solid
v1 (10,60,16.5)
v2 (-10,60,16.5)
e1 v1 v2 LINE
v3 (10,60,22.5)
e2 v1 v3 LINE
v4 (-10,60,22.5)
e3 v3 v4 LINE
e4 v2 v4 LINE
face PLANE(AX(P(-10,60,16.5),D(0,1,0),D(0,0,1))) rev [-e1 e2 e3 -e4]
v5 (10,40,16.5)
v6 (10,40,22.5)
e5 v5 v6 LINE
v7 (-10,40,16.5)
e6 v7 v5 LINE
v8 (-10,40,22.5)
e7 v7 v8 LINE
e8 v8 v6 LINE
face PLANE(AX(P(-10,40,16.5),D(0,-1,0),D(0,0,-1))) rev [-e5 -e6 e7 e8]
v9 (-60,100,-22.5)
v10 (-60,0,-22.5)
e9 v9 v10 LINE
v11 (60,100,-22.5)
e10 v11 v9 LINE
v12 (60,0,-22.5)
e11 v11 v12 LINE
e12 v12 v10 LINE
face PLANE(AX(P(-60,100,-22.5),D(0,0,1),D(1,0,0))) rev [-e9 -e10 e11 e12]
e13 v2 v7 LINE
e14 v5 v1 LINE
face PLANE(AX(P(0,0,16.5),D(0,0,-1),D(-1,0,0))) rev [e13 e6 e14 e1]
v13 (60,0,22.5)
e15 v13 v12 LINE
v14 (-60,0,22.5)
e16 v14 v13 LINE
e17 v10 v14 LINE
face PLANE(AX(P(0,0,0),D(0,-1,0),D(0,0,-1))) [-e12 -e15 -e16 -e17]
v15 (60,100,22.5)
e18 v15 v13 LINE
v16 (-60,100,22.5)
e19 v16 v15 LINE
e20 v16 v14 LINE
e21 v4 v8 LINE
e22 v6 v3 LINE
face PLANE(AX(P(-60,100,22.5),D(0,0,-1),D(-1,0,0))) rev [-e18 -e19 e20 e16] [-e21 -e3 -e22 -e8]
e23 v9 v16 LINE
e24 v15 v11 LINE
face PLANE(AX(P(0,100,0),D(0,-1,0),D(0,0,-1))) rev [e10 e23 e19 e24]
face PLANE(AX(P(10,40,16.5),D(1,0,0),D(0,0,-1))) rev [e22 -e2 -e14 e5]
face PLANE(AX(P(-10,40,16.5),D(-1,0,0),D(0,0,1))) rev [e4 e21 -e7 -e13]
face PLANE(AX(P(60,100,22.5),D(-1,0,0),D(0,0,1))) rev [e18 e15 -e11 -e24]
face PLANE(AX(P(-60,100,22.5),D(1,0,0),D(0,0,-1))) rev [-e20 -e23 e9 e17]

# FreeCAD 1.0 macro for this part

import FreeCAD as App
import Part
import Sketcher

doc = App.newDocument("Part")
params = doc.addObject("Spreadsheet::Sheet", "Params")
for row, (alias, value) in enumerate([
    ("sketch1_width", "120 mm"),
    ("sketch1_height", "45 mm"),
    ("pad1_length", "100 mm"),
    ("sketch2_width", "20 mm"),
    ("pocket1_length", "6 mm"),
], start=1):
    params.set(f"A{row}", alias)
    params.set(f"B{row}", "=" + value)
    params.setAlias(f"B{row}", alias)

body = doc.addObject("PartDesign::Body", "Body")

# Sketch on XZ plane
sketch1 = body.newObject("Sketcher::SketchObject", "Sketch")
sketch1.AttachmentSupport = (doc.getObject("XZ_Plane"), [""])
sketch1.MapMode = "FlatFace"
sketch1.addGeometry([
    Part.LineSegment(App.Vector(-60, -22, 0), App.Vector(-60, 22, 0)),
    Part.LineSegment(App.Vector(-60, 22, 0), App.Vector(60, 22, 0)),
    Part.LineSegment(App.Vector(60, 22, 0), App.Vector(60, -22, 0)),
    Part.LineSegment(App.Vector(60, -22, 0), App.Vector(-60, -22, 0)),
], False)
sketch1.addConstraint([
    Sketcher.Constraint("Coincident", 0, 2, 1, 1),
    Sketcher.Constraint("Coincident", 1, 2, 2, 1),
    Sketcher.Constraint("Coincident", 2, 2, 3, 1),
    Sketcher.Constraint("Coincident", 3, 2, 0, 1),
    Sketcher.Constraint("Vertical", 0),
    Sketcher.Constraint("Horizontal", 1),
    Sketcher.Constraint("Vertical", 2),
    Sketcher.Constraint("Horizontal", 3),
    Sketcher.Constraint("Symmetric", 0, 2, 2, 2, -1, 1),
    Sketcher.Constraint("DistanceX", 1, 1, 1, 2, 120.0),
    Sketcher.Constraint("DistanceY", 0, 1, 0, 2, 45.0),
])
sketch1.setExpression("Constraints[9]", "Params.sketch1_width")
sketch1.setExpression("Constraints[10]", "Params.sketch1_height")
pad1 = body.newObject("PartDesign::Pad", "Pad")
pad1.Profile = sketch1
pad1.setExpression("Length", "Params.pad1_length")
pad1.Reversed = True

# Sketch on XY plane
sketch2 = body.newObject("Sketcher::SketchObject", "Sketch001")
sketch2.AttachmentSupport = (doc.getObject("XY_Plane"), [""])
sketch2.MapMode = "FlatFace"
sketch2.AttachmentOffset = App.Placement(App.Vector(0, 0, 22.5), App.Rotation())
sketch2.addGeometry([
    Part.LineSegment(App.Vector(-10, 60, 0), App.Vector(-10, 40, 0)),
    Part.LineSegment(App.Vector(-10, 40, 0), App.Vector(10, 40, 0)),
    Part.LineSegment(App.Vector(10, 40, 0), App.Vector(10, 60, 0)),
    Part.LineSegment(App.Vector(10, 60, 0), App.Vector(-10, 60, 0)),
], False)
sketch2.addConstraint([
    Sketcher.Constraint("Coincident", 0, 2, 1, 1),
    Sketcher.Constraint("Coincident", 1, 2, 2, 1),
    Sketcher.Constraint("Coincident", 2, 2, 3, 1),
    Sketcher.Constraint("Coincident", 3, 2, 0, 1),
    Sketcher.Constraint("Vertical", 0),
    Sketcher.Constraint("Horizontal", 1),
    Sketcher.Constraint("Vertical", 2),
    Sketcher.Constraint("Horizontal", 3),
    Sketcher.Constraint("Equal", 3, 0),
    Sketcher.Constraint("DistanceX", 1, 1, 1, 2, 20.0),
    Sketcher.Constraint("DistanceX", 0, 2, -1, 1, 10.0),
    Sketcher.Constraint("DistanceY", -1, 1, 0, 2, 40.0),
])
sketch2.setExpression("Constraints[9]", "Params.sketch2_width")
pocket1 = body.newObject("PartDesign::Pocket", "Pocket")
pocket1.Profile = sketch2
pocket1.setExpression("Length", "Params.pocket1_length")

doc.recompute()
